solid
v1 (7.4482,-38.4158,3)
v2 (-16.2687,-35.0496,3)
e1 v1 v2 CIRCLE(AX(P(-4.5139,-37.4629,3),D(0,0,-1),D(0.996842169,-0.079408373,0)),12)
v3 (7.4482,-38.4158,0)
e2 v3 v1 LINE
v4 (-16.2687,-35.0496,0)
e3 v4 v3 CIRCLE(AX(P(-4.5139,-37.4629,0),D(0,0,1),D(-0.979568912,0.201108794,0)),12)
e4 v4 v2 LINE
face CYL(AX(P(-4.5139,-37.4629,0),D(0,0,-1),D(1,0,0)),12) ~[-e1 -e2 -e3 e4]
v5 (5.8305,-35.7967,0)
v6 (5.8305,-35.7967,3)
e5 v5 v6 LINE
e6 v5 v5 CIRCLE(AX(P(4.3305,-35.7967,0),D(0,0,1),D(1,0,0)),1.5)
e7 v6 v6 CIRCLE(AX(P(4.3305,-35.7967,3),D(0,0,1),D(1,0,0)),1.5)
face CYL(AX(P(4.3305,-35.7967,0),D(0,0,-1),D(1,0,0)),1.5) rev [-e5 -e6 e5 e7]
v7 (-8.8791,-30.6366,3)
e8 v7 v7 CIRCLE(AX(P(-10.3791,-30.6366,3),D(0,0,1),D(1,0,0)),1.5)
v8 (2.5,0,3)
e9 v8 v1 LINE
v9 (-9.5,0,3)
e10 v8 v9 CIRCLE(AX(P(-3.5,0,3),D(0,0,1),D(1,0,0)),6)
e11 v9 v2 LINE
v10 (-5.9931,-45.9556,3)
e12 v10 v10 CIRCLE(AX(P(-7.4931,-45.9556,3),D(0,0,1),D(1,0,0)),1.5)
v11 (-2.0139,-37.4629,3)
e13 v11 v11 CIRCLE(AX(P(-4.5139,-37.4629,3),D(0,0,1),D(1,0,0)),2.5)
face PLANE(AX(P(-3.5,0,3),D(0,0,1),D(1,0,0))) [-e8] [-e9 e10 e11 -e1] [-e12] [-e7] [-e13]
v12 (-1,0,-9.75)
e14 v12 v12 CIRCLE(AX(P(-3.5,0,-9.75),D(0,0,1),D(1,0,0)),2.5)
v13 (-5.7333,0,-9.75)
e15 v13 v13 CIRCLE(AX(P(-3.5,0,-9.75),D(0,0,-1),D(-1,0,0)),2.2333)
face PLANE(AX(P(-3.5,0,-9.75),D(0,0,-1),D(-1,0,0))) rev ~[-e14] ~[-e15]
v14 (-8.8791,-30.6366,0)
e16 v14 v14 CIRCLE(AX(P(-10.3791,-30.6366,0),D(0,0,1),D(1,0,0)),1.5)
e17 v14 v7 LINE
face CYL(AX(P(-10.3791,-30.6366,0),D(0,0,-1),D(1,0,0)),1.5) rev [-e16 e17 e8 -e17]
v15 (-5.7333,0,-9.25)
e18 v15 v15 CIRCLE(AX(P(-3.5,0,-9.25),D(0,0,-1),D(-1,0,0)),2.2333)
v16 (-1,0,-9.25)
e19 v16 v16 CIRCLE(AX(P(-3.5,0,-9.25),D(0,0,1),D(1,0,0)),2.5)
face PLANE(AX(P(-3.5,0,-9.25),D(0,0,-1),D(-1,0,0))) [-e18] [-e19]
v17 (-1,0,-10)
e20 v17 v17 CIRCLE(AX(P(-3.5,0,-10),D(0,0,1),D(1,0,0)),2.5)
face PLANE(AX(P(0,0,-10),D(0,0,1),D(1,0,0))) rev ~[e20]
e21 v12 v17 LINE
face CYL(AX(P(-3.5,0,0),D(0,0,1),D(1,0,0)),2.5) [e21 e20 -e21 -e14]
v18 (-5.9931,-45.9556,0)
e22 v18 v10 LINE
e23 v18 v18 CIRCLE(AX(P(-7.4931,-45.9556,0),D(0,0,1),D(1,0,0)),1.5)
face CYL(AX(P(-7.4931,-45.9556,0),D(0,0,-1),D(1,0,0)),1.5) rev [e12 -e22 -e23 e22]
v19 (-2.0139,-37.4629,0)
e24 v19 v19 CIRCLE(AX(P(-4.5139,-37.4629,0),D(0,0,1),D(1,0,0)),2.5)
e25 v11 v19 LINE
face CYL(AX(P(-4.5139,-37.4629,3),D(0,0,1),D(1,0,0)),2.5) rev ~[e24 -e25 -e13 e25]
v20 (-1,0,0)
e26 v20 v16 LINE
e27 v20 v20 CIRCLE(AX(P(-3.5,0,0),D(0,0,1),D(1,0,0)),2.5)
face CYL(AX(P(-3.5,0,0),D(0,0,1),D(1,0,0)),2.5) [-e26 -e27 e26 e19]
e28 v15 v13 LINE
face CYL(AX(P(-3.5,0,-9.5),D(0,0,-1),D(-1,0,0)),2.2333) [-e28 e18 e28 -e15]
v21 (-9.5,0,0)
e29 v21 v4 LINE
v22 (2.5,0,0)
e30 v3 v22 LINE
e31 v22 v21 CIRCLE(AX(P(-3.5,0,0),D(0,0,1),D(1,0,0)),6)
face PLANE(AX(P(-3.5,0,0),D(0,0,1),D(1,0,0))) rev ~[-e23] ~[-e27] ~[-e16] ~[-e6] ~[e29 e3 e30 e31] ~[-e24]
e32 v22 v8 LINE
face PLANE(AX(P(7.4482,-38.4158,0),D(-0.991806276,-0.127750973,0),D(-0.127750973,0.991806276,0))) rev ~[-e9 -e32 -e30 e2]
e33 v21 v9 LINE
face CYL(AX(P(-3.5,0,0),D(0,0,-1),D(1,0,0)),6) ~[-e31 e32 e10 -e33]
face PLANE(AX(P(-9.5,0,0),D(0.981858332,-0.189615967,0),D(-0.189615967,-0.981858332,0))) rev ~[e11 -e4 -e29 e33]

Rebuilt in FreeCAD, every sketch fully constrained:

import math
import FreeCAD as App
import Part
import Sketcher
Q = App.Units.Quantity

doc = App.newDocument("Part")
body = doc.addObject("PartDesign::Body", "Body")
body.AllowCompound = True

# Sketch on XY plane
sketch1 = body.newObject("Sketcher::SketchObject", "Sketch")
sketch1.AttachmentSupport = (doc.getObject("XY_Plane"), [""])
sketch1.MapMode = "FlatFace"
sketch1.addGeometry(Part.Circle(App.Vector(-3.5, 0, 0), App.Vector(0, 0, 1), 2.5), False)
sketch1.addConstraint(Sketcher.Constraint("PointOnObject", 0, 3, -1))
sketch1.addConstraint(Sketcher.Constraint("Diameter", 0, Q("5 mm")))
sketch1.addConstraint(Sketcher.Constraint("DistanceX", 0, 3, -1, 1, Q("3.5 mm")))
pad1 = body.newObject("PartDesign::Pad", "Pad")
pad1.Profile = sketch1
pad1.Length = 10
pad1.Reversed = True

# Sketch on XY plane
sketch2 = body.newObject("Sketcher::SketchObject", "Sketch001")
sketch2.AttachmentSupport = (doc.getObject("XY_Plane"), [""])
sketch2.MapMode = "FlatFace"
sketch2.AttachmentOffset = App.Placement(App.Vector(0, 0, -9.5), App.Rotation())
sketch2.addGeometry(Part.Circle(App.Vector(-3.5, 0, 0), App.Vector(0, 0, 1), 2.5), False)
sketch2.addGeometry(Part.Circle(App.Vector(-3.5, 0, 0), App.Vector(0, 0, 1), 2.2), False)
sketch2.addConstraint(Sketcher.Constraint("Coincident", 1, 3, 0, 3))
sketch2.addConstraint(Sketcher.Constraint("PointOnObject", 0, 3, -1))
sketch2.addConstraint(Sketcher.Constraint("Diameter", 0, Q("5 mm")))
sketch2.addConstraint(Sketcher.Constraint("Diameter", 1, Q("4.4666 mm")))
sketch2.addConstraint(Sketcher.Constraint("DistanceX", 0, 3, -1, 1, Q("3.5 mm")))
pocket1 = body.newObject("PartDesign::Pocket", "Pocket")
pocket1.Profile = sketch2
pocket1.Length = 0.5
pocket1.Midplane = True

# Sketch on XY plane
sketch3 = body.newObject("Sketcher::SketchObject", "Sketch002")
sketch3.AttachmentSupport = (doc.getObject("XY_Plane"), [""])
sketch3.MapMode = "FlatFace"
sketch3.addGeometry(Part.LineSegment(App.Vector(7.4482, -38.4158, 0), App.Vector(2.5, 0, 0)), False)
sketch3.addGeometry(Part.ArcOfCircle(Part.Circle(App.Vector(-3.5, 0, 0), App.Vector(0, 0, 1), 6), math.radians(0), math.radians(180)), False)
sketch3.addGeometry(Part.LineSegment(App.Vector(-9.5, 0, 0), App.Vector(-16.268758, -35.049589, 0)), False)
sketch3.addGeometry(Part.ArcOfCircle(Part.Circle(App.Vector(-4.5139, -37.4629, 0), App.Vector(0, 0, 1), 12), math.radians(168.398194), math.radians(355.44544)), False)
sketch3.addGeometry(Part.Circle(App.Vector(-7.4931, -45.9556, 0), App.Vector(0, 0, 1), 1.5), False)
sketch3.addGeometry(Part.Circle(App.Vector(-10.3791, -30.6366, 0), App.Vector(0, 0, 1), 1.5), False)
sketch3.addGeometry(Part.Circle(App.Vector(4.3305, -35.7967, 0), App.Vector(0, 0, 1), 1.5), False)
sketch3.addGeometry(Part.Circle(App.Vector(-3.5, 0, 0), App.Vector(0, 0, 1), 2.5), False)
sketch3.addConstraint(Sketcher.Constraint("Coincident", 0, 2, 1, 1))
sketch3.addConstraint(Sketcher.Constraint("Coincident", 1, 2, 2, 1))
sketch3.addConstraint(Sketcher.Constraint("Coincident", 2, 2, 3, 1))
sketch3.addConstraint(Sketcher.Constraint("Coincident", 3, 2, 0, 1))
sketch3.addConstraint(Sketcher.Constraint("Coincident", 7, 3, 1, 3))
sketch3.addConstraint(Sketcher.Constraint("PointOnObject", 1, 3, -1))
sketch3.addConstraint(Sketcher.Constraint("PointOnObject", 0, 2, -1))
sketch3.addConstraint(Sketcher.Constraint("PointOnObject", 1, 2, -1))
sketch3.addConstraint(Sketcher.Constraint("Radius", 1, Q("6 mm")))
sketch3.addConstraint(Sketcher.Constraint("Radius", 3, Q("12 mm")))
sketch3.addConstraint(Sketcher.Constraint("Diameter", 4, Q("3 mm")))
sketch3.addConstraint(Sketcher.Constraint("Diameter", 5, Q("3 mm")))
sketch3.addConstraint(Sketcher.Constraint("Diameter", 6, Q("3 mm")))
sketch3.addConstraint(Sketcher.Constraint("Diameter", 7, Q("5 mm")))
sketch3.addConstraint(Sketcher.Constraint("DistanceX", 1, 3, -1, 1, Q("3.5 mm")))
sketch3.addConstraint(Sketcher.Constraint("DistanceY", 6, 3, 5, 3, Q("5.16 mm")))
sketch3.addConstraint(Sketcher.Constraint("DistanceX", 3, 3, -1, 1, Q("4.514 mm")))
sketch3.addConstraint(Sketcher.Constraint("DistanceY", 3, 3, -1, 1, Q("37.463 mm")))
sketch3.addConstraint(Sketcher.Constraint("DistanceX", 4, 3, -1, 1, Q("7.493 mm")))
sketch3.addConstraint(Sketcher.Constraint("DistanceX", 5, 3, -1, 1, Q("10.379 mm")))
sketch3.addConstraint(Sketcher.Constraint("DistanceY", 4, 3, 5, 3, Q("15.319 mm")))
sketch3.addConstraint(Sketcher.Constraint("DistanceY", 2, 2, 5, 3, Q("4.413 mm")))
sketch3.addConstraint(Sketcher.Constraint("DistanceY", 3, 2, 6, 3, Q("2.619 mm")))
sketch3.addConstraint(Sketcher.Constraint("DistanceX", 3, 3, 3, 2, Q("11.962 mm")))
sketch3.addConstraint(Sketcher.Constraint("DistanceX", -1, 1, 6, 3, Q("4.3305 mm")))
pad2 = body.newObject("PartDesign::Pad", "Pad001")
pad2.Profile = sketch3
pad2.Length = 3

# Sketch on XY plane
sketch4 = body.newObject("Sketcher::SketchObject", "Sketch003")
sketch4.AttachmentSupport = (doc.getObject("XY_Plane"), [""])
sketch4.MapMode = "FlatFace"
sketch4.AttachmentOffset = App.Placement(App.Vector(0, 0, 3), App.Rotation())
sketch4.addGeometry(Part.Circle(App.Vector(-3.5, 0, 0), App.Vector(0, 0, 1), 2.5), False)
sketch4.addConstraint(Sketcher.Constraint("PointOnObject", 0, 3, -1))
sketch4.addConstraint(Sketcher.Constraint("Diameter", 0, Q("5 mm")))
sketch4.addConstraint(Sketcher.Constraint("DistanceX", 0, 3, -1, 1, Q("3.5 mm")))
pad3 = body.newObject("PartDesign::Pad", "Pad002")
pad3.Profile = sketch4
pad3.Length = 10
pad3.Reversed = True

# Sketch on XY plane
sketch5 = body.newObject("Sketcher::SketchObject", "Sketch004")
sketch5.AttachmentSupport = (doc.getObject("XY_Plane"), [""])
sketch5.MapMode = "FlatFace"
sketch5.AttachmentOffset = App.Placement(App.Vector(0, 0, 3), App.Rotation())
sketch5.addGeometry(Part.Circle(App.Vector(-4.5, -37.5, 0), App.Vector(0, 0, 1), 2.5), False)
sketch5.addConstraint(Sketcher.Constraint("Diameter", 0, Q("5 mm")))
sketch5.addConstraint(Sketcher.Constraint("DistanceX", 0, 3, -1, 1, Q("4.514 mm")))
sketch5.addConstraint(Sketcher.Constraint("DistanceY", 0, 3, -1, 1, Q("37.463 mm")))
pocket2 = body.newObject("PartDesign::Pocket", "Pocket001")
pocket2.Profile = sketch5
pocket2.Length = 10

doc.recompute()
